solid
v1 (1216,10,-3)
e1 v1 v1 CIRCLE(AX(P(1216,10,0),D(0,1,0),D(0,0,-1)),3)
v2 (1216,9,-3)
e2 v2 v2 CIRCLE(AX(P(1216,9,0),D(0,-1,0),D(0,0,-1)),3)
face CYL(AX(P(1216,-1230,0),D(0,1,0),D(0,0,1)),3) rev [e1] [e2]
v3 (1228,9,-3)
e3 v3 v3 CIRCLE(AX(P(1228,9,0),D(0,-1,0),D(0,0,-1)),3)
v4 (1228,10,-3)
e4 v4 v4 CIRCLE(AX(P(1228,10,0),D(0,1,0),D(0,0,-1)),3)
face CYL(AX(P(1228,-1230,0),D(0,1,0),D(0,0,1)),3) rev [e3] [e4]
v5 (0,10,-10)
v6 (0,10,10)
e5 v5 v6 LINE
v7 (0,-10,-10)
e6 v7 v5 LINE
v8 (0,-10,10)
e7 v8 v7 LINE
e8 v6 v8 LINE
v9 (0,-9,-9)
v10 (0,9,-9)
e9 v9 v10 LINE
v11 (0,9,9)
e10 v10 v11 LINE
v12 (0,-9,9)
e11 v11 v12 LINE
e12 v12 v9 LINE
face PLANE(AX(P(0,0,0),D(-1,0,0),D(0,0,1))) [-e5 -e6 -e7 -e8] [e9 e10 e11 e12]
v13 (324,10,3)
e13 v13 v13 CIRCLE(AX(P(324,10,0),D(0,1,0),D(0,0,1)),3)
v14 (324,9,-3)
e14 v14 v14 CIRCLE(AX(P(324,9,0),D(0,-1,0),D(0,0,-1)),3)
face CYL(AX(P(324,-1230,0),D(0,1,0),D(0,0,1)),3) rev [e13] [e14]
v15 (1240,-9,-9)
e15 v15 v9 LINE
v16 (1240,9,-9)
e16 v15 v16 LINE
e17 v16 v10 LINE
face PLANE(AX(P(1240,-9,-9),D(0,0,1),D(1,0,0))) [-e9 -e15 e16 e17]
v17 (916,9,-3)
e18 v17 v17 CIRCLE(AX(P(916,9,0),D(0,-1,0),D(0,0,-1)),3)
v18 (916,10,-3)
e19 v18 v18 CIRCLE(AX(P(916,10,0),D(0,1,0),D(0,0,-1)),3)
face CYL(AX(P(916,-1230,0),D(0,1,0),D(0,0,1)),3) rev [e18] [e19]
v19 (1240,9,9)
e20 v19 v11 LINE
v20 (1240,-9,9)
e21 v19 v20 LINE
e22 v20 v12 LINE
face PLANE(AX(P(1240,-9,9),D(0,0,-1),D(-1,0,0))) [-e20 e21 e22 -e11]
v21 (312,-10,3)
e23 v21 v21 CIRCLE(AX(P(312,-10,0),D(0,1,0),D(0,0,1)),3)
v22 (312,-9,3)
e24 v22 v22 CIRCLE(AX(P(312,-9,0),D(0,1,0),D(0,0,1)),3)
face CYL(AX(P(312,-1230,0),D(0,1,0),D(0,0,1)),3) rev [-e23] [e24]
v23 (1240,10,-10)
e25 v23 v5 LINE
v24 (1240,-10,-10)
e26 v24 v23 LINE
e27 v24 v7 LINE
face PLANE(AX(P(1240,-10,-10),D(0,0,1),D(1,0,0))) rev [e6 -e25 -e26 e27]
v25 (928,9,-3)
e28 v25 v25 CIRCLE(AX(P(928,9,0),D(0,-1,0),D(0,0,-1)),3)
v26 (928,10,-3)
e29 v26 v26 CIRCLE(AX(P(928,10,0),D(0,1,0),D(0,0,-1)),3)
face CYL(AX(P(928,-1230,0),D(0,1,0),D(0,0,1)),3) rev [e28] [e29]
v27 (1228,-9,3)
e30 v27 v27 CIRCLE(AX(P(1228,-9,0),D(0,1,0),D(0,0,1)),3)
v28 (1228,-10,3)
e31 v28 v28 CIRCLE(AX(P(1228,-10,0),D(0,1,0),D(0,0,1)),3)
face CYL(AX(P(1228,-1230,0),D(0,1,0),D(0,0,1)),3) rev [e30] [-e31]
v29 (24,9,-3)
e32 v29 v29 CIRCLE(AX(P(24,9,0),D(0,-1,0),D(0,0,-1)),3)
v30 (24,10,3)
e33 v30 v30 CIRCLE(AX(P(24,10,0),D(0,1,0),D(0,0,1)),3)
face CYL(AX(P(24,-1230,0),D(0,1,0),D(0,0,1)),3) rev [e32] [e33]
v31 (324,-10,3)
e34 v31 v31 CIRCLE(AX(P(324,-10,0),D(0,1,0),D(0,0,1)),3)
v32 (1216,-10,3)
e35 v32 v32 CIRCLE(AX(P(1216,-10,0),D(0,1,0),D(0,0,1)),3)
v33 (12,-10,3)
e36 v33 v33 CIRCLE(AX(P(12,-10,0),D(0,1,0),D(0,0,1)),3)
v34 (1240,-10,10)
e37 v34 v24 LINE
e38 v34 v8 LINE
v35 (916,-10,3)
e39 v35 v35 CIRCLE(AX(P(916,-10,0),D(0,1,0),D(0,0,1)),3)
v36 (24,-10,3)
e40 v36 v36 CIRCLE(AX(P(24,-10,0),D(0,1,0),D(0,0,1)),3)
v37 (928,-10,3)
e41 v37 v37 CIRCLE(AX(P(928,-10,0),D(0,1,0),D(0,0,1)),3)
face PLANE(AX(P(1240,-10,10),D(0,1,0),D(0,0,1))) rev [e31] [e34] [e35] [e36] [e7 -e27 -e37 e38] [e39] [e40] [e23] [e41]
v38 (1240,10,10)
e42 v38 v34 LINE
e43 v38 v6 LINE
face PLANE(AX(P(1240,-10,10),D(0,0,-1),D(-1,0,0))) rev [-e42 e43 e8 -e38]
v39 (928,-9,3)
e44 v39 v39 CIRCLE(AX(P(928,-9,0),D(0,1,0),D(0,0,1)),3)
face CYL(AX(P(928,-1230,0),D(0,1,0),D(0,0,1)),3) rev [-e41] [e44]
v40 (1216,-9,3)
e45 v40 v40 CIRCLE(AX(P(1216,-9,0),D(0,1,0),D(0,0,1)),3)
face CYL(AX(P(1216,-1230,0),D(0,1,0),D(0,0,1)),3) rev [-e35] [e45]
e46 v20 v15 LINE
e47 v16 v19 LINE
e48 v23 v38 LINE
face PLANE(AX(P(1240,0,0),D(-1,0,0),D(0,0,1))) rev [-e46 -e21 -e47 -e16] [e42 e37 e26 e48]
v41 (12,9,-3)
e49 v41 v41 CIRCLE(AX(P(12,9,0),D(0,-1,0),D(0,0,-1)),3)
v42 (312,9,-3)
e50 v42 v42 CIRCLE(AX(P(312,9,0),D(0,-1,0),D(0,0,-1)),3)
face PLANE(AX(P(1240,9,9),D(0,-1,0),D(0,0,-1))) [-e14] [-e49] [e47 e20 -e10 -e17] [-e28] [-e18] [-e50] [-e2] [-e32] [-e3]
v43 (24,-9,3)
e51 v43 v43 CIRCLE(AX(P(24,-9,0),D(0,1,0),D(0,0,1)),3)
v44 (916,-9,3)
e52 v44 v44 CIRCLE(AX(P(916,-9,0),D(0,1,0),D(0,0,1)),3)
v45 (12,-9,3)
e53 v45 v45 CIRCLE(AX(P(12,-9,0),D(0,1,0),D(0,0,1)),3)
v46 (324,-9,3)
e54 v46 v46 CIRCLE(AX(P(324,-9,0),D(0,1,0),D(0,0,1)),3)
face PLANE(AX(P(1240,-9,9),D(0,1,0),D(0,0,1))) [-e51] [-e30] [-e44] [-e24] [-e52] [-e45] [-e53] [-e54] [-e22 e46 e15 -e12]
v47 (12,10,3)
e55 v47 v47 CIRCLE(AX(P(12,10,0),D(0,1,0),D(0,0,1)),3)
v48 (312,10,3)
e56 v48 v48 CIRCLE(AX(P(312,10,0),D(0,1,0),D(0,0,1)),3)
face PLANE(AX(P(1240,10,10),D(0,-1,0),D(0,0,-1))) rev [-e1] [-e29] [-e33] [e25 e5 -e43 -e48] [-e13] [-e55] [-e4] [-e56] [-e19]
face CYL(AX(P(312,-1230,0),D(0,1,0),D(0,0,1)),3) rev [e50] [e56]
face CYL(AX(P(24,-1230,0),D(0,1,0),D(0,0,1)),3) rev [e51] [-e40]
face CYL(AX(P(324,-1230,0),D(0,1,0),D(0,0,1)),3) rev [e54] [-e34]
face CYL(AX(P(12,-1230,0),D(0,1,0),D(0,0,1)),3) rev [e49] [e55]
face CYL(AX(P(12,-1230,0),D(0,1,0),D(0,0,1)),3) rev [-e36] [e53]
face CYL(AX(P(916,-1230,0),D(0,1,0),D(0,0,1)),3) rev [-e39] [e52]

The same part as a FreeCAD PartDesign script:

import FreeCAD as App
import Part
import Sketcher
Q = App.Units.Quantity


def add_polygon(sketch, points):
    """Adds a closed chain of lines whose ends are joined by coincident constraints."""
    first, n = sketch.GeometryCount, len(points)
    for a, b in zip(points, points[1:] + points[:1]):
        sketch.addGeometry(Part.LineSegment(App.Vector(*a, 0), App.Vector(*b, 0)), False)
    for i in range(n):
        sketch.addConstraint(Sketcher.Constraint("Coincident", first + i, 2, first + (i + 1) % n, 1))

doc = App.newDocument("Part")
body = doc.addObject("PartDesign::Body", "Body")

# Sketch on YZ plane
sketch1 = body.newObject("Sketcher::SketchObject", "Sketch")
sketch1.AttachmentSupport = (doc.getObject("YZ_Plane"), [""])
sketch1.MapMode = "FlatFace"
add_polygon(sketch1, [(10, 10), (-10, 10), (-10, -10), (10, -10)])  # lines 0-3
add_polygon(sketch1, [(-9, -9), (-9, 9), (9, 9), (9, -9)])  # lines 4-7
sketch1.addConstraint(Sketcher.Constraint("Horizontal", 0))
sketch1.addConstraint(Sketcher.Constraint("Vertical", 1))
sketch1.addConstraint(Sketcher.Constraint("Horizontal", 2))
sketch1.addConstraint(Sketcher.Constraint("Vertical", 3))
sketch1.addConstraint(Sketcher.Constraint("Vertical", 4))
sketch1.addConstraint(Sketcher.Constraint("Horizontal", 5))
sketch1.addConstraint(Sketcher.Constraint("Vertical", 6))
sketch1.addConstraint(Sketcher.Constraint("Horizontal", 7))
sketch1.addConstraint(Sketcher.Constraint("Symmetric", 0, 2, 2, 2, -1, 1))
sketch1.addConstraint(Sketcher.Constraint("Symmetric", 4, 2, 6, 2, -1, 1))
sketch1.addConstraint(Sketcher.Constraint("Equal", 2, 1))
sketch1.addConstraint(Sketcher.Constraint("Equal", 7, 4))
sketch1.addConstraint(Sketcher.Constraint("DistanceX", 0, 2, 0, 1, Q("20 mm")))
sketch1.addConstraint(Sketcher.Constraint("DistanceX", 5, 1, 5, 2, Q("18 mm")))
pad1 = body.newObject("PartDesign::Pad", "Pad")
pad1.Profile = sketch1
pad1.Length = 1240

# Sketch on XZ plane
sketch2 = body.newObject("Sketcher::SketchObject", "Sketch001")
sketch2.AttachmentSupport = (doc.getObject("XZ_Plane"), [""])
sketch2.MapMode = "FlatFace"
sketch2.AttachmentOffset = App.Placement(App.Vector(0, 0, -10), App.Rotation())
sketch2.addGeometry(Part.Circle(App.Vector(12, 0, 0), App.Vector(0, 0, 1), 3), False)
sketch2.addGeometry(Part.Circle(App.Vector(24, 0, 0), App.Vector(0, 0, 1), 3), False)
sketch2.addGeometry(Part.Circle(App.Vector(1216, 0, 0), App.Vector(0, 0, 1), 3), False)
sketch2.addGeometry(Part.Circle(App.Vector(1228, 0, 0), App.Vector(0, 0, 1), 3), False)
sketch2.addGeometry(Part.Circle(App.Vector(324, 0, 0), App.Vector(0, 0, 1), 3), False)
sketch2.addGeometry(Part.Circle(App.Vector(312, 0, 0), App.Vector(0, 0, 1), 3), False)
sketch2.addGeometry(Part.Circle(App.Vector(916, 0, 0), App.Vector(0, 0, 1), 3), False)
sketch2.addGeometry(Part.Circle(App.Vector(928, 0, 0), App.Vector(0, 0, 1), 3), False)
sketch2.addConstraint(Sketcher.Constraint("Equal", 0, 1))
sketch2.addConstraint(Sketcher.Constraint("Equal", 1, 2))
sketch2.addConstraint(Sketcher.Constraint("Equal", 2, 3))
sketch2.addConstraint(Sketcher.Constraint("Equal", 3, 4))
sketch2.addConstraint(Sketcher.Constraint("Equal", 4, 5))
sketch2.addConstraint(Sketcher.Constraint("Equal", 5, 6))
sketch2.addConstraint(Sketcher.Constraint("Equal", 6, 7))
sketch2.addConstraint(Sketcher.Constraint("PointOnObject", 0, 3, -1))
sketch2.addConstraint(Sketcher.Constraint("PointOnObject", 1, 3, -1))
sketch2.addConstraint(Sketcher.Constraint("PointOnObject", 2, 3, -1))
sketch2.addConstraint(Sketcher.Constraint("PointOnObject", 3, 3, -1))
sketch2.addConstraint(Sketcher.Constraint("PointOnObject", 4, 3, -1))
sketch2.addConstraint(Sketcher.Constraint("PointOnObject", 5, 3, -1))
sketch2.addConstraint(Sketcher.Constraint("PointOnObject", 6, 3, -1))
sketch2.addConstraint(Sketcher.Constraint("PointOnObject", 7, 3, -1))
sketch2.addConstraint(Sketcher.Constraint("Diameter", 0, Q("6 mm")))
sketch2.addConstraint(Sketcher.Constraint("DistanceX", -1, 1, 0, 3, Q("12 mm")))
sketch2.addConstraint(Sketcher.Constraint("DistanceX", -1, 1, 1, 3, Q("24 mm")))
sketch2.addConstraint(Sketcher.Constraint("DistanceX", -1, 1, 2, 3, Q("1216 mm")))
sketch2.addConstraint(Sketcher.Constraint("DistanceX", -1, 1, 3, 3, Q("1228 mm")))
sketch2.addConstraint(Sketcher.Constraint("DistanceX", -1, 1, 4, 3, Q("324 mm")))
sketch2.addConstraint(Sketcher.Constraint("DistanceX", -1, 1, 5, 3, Q("312 mm")))
sketch2.addConstraint(Sketcher.Constraint("DistanceX", -1, 1, 6, 3, Q("916 mm")))
sketch2.addConstraint(Sketcher.Constraint("DistanceX", -1, 1, 7, 3, Q("928 mm")))
pocket1 = body.newObject("PartDesign::Pocket", "Pocket")
pocket1.Profile = sketch2
pocket1.Length = 1240
pocket1.Reversed = True

doc.recompute()
